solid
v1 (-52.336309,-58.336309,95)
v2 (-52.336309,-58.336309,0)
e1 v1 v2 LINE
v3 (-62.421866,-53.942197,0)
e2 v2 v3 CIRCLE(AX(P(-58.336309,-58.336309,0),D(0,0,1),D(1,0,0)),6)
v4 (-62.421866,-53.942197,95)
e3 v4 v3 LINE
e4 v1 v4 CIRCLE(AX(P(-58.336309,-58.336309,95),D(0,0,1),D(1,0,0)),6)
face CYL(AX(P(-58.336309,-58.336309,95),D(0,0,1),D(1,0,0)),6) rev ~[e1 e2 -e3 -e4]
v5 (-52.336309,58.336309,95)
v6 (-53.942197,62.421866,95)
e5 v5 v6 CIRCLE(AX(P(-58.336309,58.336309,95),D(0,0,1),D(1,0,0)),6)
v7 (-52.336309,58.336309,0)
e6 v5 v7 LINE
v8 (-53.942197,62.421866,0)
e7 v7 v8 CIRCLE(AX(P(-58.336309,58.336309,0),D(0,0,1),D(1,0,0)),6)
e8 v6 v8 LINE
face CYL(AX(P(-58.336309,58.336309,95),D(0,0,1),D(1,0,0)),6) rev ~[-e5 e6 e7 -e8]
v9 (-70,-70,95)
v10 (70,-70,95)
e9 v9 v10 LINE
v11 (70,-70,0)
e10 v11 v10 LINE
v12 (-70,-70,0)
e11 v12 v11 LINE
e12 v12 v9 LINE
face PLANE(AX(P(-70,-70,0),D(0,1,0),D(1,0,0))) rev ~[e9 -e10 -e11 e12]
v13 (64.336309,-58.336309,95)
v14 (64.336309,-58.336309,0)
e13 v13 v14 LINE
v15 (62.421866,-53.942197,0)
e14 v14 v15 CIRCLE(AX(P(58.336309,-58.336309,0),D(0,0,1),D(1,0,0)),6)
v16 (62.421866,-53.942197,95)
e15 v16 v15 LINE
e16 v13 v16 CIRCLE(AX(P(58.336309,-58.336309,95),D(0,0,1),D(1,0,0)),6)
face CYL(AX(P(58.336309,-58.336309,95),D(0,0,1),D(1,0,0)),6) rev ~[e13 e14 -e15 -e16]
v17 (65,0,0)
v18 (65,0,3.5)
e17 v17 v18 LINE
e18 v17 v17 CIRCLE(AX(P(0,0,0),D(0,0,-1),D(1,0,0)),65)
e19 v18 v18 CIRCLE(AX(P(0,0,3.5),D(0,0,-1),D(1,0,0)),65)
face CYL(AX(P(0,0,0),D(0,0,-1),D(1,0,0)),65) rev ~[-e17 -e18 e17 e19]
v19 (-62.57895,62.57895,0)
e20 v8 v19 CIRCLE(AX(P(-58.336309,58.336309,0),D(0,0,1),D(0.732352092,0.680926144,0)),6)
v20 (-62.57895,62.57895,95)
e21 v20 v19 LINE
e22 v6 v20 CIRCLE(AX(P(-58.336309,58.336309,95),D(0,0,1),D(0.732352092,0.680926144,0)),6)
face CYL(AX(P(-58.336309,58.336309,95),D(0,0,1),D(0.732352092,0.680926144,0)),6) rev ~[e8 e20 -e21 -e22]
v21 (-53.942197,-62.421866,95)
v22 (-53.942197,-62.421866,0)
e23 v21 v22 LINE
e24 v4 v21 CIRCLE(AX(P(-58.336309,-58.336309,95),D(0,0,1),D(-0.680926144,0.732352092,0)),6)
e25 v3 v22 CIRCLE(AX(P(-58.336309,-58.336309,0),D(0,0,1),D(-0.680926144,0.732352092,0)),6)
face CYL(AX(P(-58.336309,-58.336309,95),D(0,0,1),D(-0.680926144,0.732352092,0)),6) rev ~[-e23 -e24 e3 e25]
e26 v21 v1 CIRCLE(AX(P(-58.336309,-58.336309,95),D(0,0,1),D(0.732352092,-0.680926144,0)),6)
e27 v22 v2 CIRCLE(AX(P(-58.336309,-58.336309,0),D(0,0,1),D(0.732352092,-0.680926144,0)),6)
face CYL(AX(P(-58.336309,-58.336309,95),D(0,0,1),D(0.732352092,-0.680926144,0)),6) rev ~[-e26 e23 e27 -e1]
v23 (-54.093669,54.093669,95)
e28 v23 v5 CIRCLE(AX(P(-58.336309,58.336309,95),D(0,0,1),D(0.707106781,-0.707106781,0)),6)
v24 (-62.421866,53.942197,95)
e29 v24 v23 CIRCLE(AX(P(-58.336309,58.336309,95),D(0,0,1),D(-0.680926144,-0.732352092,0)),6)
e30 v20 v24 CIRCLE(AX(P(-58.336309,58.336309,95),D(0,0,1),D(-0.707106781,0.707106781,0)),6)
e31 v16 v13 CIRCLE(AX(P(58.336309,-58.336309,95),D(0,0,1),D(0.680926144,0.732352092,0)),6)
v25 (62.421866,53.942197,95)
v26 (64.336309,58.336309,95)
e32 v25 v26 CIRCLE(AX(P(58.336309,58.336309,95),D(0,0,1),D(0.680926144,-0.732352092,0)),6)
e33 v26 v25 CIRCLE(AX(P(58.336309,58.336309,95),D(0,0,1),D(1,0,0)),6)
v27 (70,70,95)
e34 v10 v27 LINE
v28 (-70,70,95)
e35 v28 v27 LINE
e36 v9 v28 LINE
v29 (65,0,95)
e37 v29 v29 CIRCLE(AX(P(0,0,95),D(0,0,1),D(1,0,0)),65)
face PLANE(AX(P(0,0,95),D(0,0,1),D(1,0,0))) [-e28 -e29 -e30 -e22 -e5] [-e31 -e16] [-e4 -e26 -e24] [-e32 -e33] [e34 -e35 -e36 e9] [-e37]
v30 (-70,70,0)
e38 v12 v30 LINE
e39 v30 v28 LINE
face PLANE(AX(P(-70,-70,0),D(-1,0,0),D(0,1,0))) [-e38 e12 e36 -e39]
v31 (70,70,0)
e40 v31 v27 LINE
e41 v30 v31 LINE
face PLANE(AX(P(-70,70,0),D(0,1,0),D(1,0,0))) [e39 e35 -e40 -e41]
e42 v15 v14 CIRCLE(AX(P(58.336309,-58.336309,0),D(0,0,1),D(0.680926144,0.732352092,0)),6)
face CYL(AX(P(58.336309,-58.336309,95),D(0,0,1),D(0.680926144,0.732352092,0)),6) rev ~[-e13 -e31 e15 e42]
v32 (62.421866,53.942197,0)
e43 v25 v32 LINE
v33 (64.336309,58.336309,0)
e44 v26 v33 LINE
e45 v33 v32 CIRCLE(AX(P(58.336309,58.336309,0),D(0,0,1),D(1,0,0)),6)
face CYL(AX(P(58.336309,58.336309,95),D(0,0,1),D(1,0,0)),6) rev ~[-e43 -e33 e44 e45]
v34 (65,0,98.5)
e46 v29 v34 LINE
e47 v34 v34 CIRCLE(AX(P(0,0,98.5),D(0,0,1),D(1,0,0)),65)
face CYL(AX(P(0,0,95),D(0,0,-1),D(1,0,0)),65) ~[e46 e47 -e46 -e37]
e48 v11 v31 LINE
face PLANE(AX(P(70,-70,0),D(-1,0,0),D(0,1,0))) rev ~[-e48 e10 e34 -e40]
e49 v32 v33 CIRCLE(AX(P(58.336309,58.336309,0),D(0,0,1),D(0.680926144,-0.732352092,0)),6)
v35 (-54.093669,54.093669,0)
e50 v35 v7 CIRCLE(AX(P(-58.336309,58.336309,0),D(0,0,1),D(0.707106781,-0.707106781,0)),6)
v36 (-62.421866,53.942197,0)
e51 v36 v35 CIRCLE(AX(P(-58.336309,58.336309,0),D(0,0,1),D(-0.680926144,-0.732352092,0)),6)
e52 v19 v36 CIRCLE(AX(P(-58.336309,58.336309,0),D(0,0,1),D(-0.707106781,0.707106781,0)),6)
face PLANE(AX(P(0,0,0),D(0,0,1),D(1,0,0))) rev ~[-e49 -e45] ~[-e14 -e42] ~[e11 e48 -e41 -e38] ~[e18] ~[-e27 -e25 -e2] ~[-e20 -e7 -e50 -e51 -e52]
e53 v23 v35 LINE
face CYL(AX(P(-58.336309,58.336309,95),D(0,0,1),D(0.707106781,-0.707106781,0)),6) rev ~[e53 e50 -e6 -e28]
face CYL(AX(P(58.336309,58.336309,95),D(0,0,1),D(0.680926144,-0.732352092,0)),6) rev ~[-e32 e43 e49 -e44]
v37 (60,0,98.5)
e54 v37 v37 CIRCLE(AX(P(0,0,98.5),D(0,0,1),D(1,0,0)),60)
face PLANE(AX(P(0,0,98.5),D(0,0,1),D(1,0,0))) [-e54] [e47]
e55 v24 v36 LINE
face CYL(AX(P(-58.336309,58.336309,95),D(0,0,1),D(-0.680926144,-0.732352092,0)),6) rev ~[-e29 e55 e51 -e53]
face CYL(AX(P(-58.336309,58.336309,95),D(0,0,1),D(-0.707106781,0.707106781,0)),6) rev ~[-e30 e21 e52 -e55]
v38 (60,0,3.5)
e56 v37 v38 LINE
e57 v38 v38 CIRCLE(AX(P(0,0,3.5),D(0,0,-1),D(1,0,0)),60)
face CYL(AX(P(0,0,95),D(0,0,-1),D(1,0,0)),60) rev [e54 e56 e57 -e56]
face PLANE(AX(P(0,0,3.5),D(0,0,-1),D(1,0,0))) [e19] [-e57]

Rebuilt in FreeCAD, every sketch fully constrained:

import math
import FreeCAD as App
import Part
import Sketcher

V = App.Vector
Q = App.Units.Quantity

doc = App.newDocument("Part")
body = doc.addObject("PartDesign::Body", "Body")

# Sketch on XY plane
sketch1 = body.newObject("Sketcher::SketchObject", "Sketch")
sketch1.AttachmentSupport = (doc.getObject("XY_Plane"), [""])
sketch1.MapMode = "FlatFace"
sketch1.addGeometry([
    Part.LineSegment(V(-70, 70, 0), V(-70, -70, 0)),  # 0
    Part.LineSegment(V(-70, -70, 0), V(70, -70, 0)),  # 1
    Part.LineSegment(V(70, -70, 0), V(70, 70, 0)),  # 2
    Part.LineSegment(V(70, 70, 0), V(-70, 70, 0)),  # 3
    Part.Circle(V(0, 0, 0), V(0, 0, 1), 60),  # 4
], False)
sketch1.addConstraint([
    Sketcher.Constraint("Coincident", 0, 2, 1, 1),
    Sketcher.Constraint("Coincident", 1, 2, 2, 1),
    Sketcher.Constraint("Coincident", 2, 2, 3, 1),
    Sketcher.Constraint("Coincident", 3, 2, 0, 1),
    Sketcher.Constraint("Vertical", 0),
    Sketcher.Constraint("Horizontal", 1),
    Sketcher.Constraint("Vertical", 2),
    Sketcher.Constraint("Horizontal", 3),
    Sketcher.Constraint("Coincident", 4, 3, -1, 1),
    Sketcher.Constraint("Symmetric", 0, 2, 2, 2, -1, 1),
    Sketcher.Constraint("Equal", 3, 0),
    Sketcher.Constraint("Diameter", 4, Q("120 mm")),
    Sketcher.Constraint("DistanceX", 1, 1, 1, 2, Q("140 mm")),
])
pad1 = body.newObject("PartDesign::Pad", "Pad")
pad1.Profile = sketch1
pad1.Length = 95

# Sketch on XY plane
sketch2 = body.newObject("Sketcher::SketchObject", "Sketch001")
sketch2.AttachmentSupport = (doc.getObject("XY_Plane"), [""])
sketch2.MapMode = "FlatFace"
sketch2.AttachmentOffset = App.Placement(V(0, 0, 95), App.Rotation())
sketch2.addGeometry([
    Part.Circle(V(0, 0, 0), V(0, 0, 1), 65),
    Part.Circle(V(0, 0, 0), V(0, 0, 1), 60),
], False)
sketch2.addConstraint([
    Sketcher.Constraint("Coincident", 0, 3, -1, 1),
    Sketcher.Constraint("Coincident", 1, 3, -1, 1),
    Sketcher.Constraint("Diameter", 0, Q("130 mm")),
    Sketcher.Constraint("Diameter", 1, Q("120 mm")),
])
pad2 = body.newObject("PartDesign::Pad", "Pad001")
pad2.Profile = sketch2
pad2.Length = 3.5

# Sketch on XY plane
sketch3 = body.newObject("Sketcher::SketchObject", "Sketch002")
sketch3.AttachmentSupport = (doc.getObject("XY_Plane"), [""])
sketch3.MapMode = "FlatFace"
sketch3.addGeometry([
    Part.Circle(V(0, 0, 0), V(0, 0, 1), 65),
    Part.Circle(V(0, 0, 0), V(0, 0, 1), 50),
], False)
sketch3.addConstraint([
    Sketcher.Constraint("Coincident", 0, 3, -1, 1),
    Sketcher.Constraint("Coincident", 1, 3, -1, 1),
    Sketcher.Constraint("Diameter", 0, Q("130 mm")),
    Sketcher.Constraint("Diameter", 1, Q("100 mm")),
])
pocket1 = body.newObject("PartDesign::Pocket", "Pocket")
pocket1.Profile = sketch3
pocket1.Length = 3.5
pocket1.Reversed = True

# Sketch on XY plane
sketch4 = body.newObject("Sketcher::SketchObject", "Sketch003")
sketch4.AttachmentSupport = (doc.getObject("XY_Plane"), [""])
sketch4.MapMode = "FlatFace"
sketch4.AttachmentOffset = App.Placement(V(0, 0, 95), App.Rotation())
sketch4.addGeometry([
    Part.ArcOfCircle(Part.Circle(V(-58.3, 58.3, 0), V(0, 0, 1), 6), math.radians(43), math.radians(135)),  # 0
    Part.ArcOfCircle(Part.Circle(V(-58.3, 58.3, 0), V(0, 0, 1), 6), math.radians(135), math.radians(227)),  # 1
    Part.ArcOfCircle(Part.Circle(V(-58.3, 58.3, 0), V(0, 0, 1), 6), math.radians(-133), math.radians(-45)),  # 2
    Part.ArcOfCircle(Part.Circle(V(-58.3, 58.3, 0), V(0, 0, 1), 6), math.radians(-45), math.radians(0)),  # 3
    Part.ArcOfCircle(Part.Circle(V(-58.3, 58.3, 0), V(0, 0, 1), 6), math.radians(0), math.radians(43)),  # 4
    Part.ArcOfCircle(Part.Circle(V(58.3, 58.3, 0), V(0, 0, 1), 6), math.radians(-47), math.radians(0)),  # 5
    Part.ArcOfCircle(Part.Circle(V(58.3, 58.3, 0), V(0, 0, 1), 6), math.radians(0), math.radians(313)),  # 6
    Part.ArcOfCircle(Part.Circle(V(58.3, -58.3, 0), V(0, 0, 1), 6), math.radians(0), math.radians(47)),  # 7
    Part.ArcOfCircle(Part.Circle(V(58.3, -58.3, 0), V(0, 0, 1), 6), math.radians(47), math.radians(360)),  # 8
    Part.ArcOfCircle(Part.Circle(V(-58.3, -58.3, 0), V(0, 0, 1), 6), math.radians(133), math.radians(317)),  # 9
    Part.ArcOfCircle(Part.Circle(V(-58.3, -58.3, 0), V(0, 0, 1), 6), math.radians(-43), math.radians(0)),  # 10
    Part.ArcOfCircle(Part.Circle(V(-58.3, -58.3, 0), V(0, 0, 1), 6), math.radians(0), math.radians(133)),  # 11
], False)
sketch4.addConstraint([
    Sketcher.Constraint("Tangent", 0, 2, 1, 1),
    Sketcher.Constraint("Tangent", 1, 2, 2, 1),
    Sketcher.Constraint("Tangent", 2, 2, 3, 1),
    Sketcher.Constraint("Tangent", 3, 2, 4, 1),
    Sketcher.Constraint("Tangent", 4, 2, 0, 1),
    Sketcher.Constraint("Tangent", 5, 1, 6, 2),
    Sketcher.Constraint("Coincident", 6, 1, 5, 2),
    Sketcher.Constraint("Tangent", 7, 1, 8, 2),
    Sketcher.Constraint("Coincident", 8, 1, 7, 2),
    Sketcher.Constraint("Tangent", 9, 2, 10, 1),
    Sketcher.Constraint("Tangent", 10, 2, 11, 1),
    Sketcher.Constraint("Tangent", 11, 2, 9, 1),
    Sketcher.Constraint("Coincident", 2, 3, 0, 3),
    Sketcher.Constraint("Equal", 4, 5),
    Sketcher.Constraint("Equal", 6, 7),
    Sketcher.Constraint("Equal", 8, 9),
    Sketcher.Constraint("Symmetric", 0, 3, 7, 3, -1, 1),
    Sketcher.Constraint("Symmetric", 5, 3, 9, 3, -1, 1),
    Sketcher.Constraint("Symmetric", 0, 3, 5, 3, -2),
    Sketcher.Constraint("Horizontal", 6, 3, 3, 2),
    Sketcher.Constraint("Horizontal", 1, 2, 5, 1),
    Sketcher.Constraint("Horizontal", 3, 2, 6, 1),
    Sketcher.Constraint("Horizontal", 11, 3, 7, 1),
    Sketcher.Constraint("Horizontal", 7, 1, 10, 2),
    Sketcher.Constraint("Horizontal", 8, 1, 11, 2),
    Sketcher.Constraint("Vertical", 5, 1, 8, 1),
    Sketcher.Constraint("Vertical", 4, 2, 9, 2),
    Sketcher.Constraint("Radius", 0, Q("6 mm")),
    Sketcher.Constraint("DistanceX", 0, 3, -1, 1, Q("58.336309 mm")),
    Sketcher.Constraint("DistanceY", -1, 1, 0, 3, Q("58.336309 mm")),
    Sketcher.Constraint("DistanceX", 0, 2, -1, 1, Q("62.57895 mm")),
    Sketcher.Constraint("DistanceX", 2, 2, -1, 1, Q("54.093669 mm")),
    Sketcher.Constraint("DistanceX", 11, 2, 9, 2, Q("8.479669 mm")),
    Sketcher.Constraint("DistanceY", 9, 2, 11, 2, Q("8.479669 mm")),
])
pocket2 = body.newObject("PartDesign::Pocket", "Pocket001")
pocket2.Profile = sketch4
pocket2.Type = "ThroughAll"

doc.recompute()
